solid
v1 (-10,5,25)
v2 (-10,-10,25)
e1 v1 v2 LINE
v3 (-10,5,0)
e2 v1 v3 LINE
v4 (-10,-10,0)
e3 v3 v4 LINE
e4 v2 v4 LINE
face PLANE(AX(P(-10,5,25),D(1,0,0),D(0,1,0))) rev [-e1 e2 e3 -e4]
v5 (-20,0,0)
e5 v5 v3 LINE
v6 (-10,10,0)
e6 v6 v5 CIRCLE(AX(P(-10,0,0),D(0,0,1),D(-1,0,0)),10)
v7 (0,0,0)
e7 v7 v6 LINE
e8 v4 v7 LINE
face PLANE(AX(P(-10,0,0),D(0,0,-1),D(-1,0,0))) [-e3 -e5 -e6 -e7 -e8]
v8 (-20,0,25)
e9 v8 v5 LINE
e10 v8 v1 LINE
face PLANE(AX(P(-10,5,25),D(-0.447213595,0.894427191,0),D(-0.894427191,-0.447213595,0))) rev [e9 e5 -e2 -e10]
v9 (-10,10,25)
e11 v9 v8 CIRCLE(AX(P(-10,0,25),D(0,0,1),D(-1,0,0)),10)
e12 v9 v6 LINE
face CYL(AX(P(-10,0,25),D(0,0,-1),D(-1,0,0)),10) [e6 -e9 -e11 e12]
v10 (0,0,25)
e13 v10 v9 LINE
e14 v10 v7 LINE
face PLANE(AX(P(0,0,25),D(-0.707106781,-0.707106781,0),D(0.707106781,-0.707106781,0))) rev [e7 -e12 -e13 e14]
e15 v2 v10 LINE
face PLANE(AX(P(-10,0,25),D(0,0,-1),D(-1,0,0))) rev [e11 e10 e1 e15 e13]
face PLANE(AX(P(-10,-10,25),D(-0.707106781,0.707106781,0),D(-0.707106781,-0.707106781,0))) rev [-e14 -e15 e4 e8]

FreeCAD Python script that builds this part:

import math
import FreeCAD as App
import Part
import Sketcher

V = App.Vector
Q = App.Units.Quantity

doc = App.newDocument("Part")
body = doc.addObject("PartDesign::Body", "Body")

# Sketch on XY plane
sketch1 = doc.addObject("Sketcher::SketchObject", "Sketch")
body.addObject(sketch1)
sketch1.AttachmentSupport = (doc.XY_Plane, [""])
sketch1.MapMode = "FlatFace"
sketch1.addGeometry([
    Part.LineSegment(V(-10, 5, 0), V(-10, -10, 0)),  # 0
    Part.LineSegment(V(-10, -10, 0), V(0, 0, 0)),  # 1
    Part.LineSegment(V(0, 0, 0), V(-10, 10, 0)),  # 2
    Part.ArcOfCircle(Part.Circle(V(-10, 0, 0), V(0, 0, 1), 10), math.radians(90), math.radians(180)),  # 3
    Part.LineSegment(V(-20, 0, 0), V(-10, 5, 0)),  # 4
], False)
sketch1.addConstraint([
    Sketcher.Constraint("Coincident", 0, 2, 1, 1),
    Sketcher.Constraint("Coincident", 1, 2, 2, 1),
    Sketcher.Constraint("Coincident", 2, 2, 3, 1),
    Sketcher.Constraint("Coincident", 3, 2, 4, 1),
    Sketcher.Constraint("Coincident", 4, 2, 0, 1),
    Sketcher.Constraint("Vertical", 0),
    Sketcher.Constraint("Coincident", 1, 2, -1, 1),
    Sketcher.Constraint("Symmetric", 0, 2, 2, 2, -1),
    Sketcher.Constraint("PointOnObject", 3, 3, -1),
    Sketcher.Constraint("PointOnObject", 3, 2, -1),
    Sketcher.Constraint("Perpendicular", 1, 2),
    Sketcher.Constraint("Vertical", 3, 3, 0, 2),
    Sketcher.Constraint("Radius", 3, Q("10 mm")),
    Sketcher.Constraint("DistanceY", 0, 2, 0, 1, Q("15 mm")),
])
pad1 = doc.addObject("PartDesign::Pad", "Pad")
body.addObject(pad1)
pad1.Profile = sketch1
pad1.Length = 25

doc.recompute()
